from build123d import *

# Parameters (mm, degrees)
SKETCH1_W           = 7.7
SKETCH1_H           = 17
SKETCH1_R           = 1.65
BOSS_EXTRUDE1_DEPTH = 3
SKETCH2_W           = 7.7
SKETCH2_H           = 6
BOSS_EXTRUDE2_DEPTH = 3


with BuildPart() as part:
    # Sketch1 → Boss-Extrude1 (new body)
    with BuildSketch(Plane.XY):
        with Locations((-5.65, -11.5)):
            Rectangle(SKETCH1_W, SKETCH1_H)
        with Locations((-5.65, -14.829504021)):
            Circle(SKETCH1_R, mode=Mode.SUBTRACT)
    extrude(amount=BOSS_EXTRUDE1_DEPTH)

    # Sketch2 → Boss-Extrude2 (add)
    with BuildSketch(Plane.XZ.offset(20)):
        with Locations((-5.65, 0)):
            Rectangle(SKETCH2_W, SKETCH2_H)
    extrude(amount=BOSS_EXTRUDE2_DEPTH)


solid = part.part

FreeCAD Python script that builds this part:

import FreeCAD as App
import Part
import Sketcher

V = App.Vector
Q = App.Units.Quantity

doc = App.newDocument("Part")
body = doc.addObject("PartDesign::Body", "Body")

sketch1 = body.newObject("Sketcher::SketchObject", "Sketch")
sketch1.AttachmentSupport = (doc.getObject("XY_Plane"), [""])
sketch1.MapMode = "FlatFace"
sketch1.addGeometry([
    Part.LineSegment(V(-9.5, -3, 0), V(-9.5, -20, 0)),
    Part.LineSegment(V(-9.5, -20, 0), V(-1.8, -20, 0)),
    Part.LineSegment(V(-1.8, -20, 0), V(-1.8, -3, 0)),
    Part.LineSegment(V(-1.8, -3, 0), V(-9.5, -3, 0)),
    Part.Circle(V(-5.7, -14.8, 0), V(0, 0, 1), 1.6),
], False)
sketch1.addConstraint([
    Sketcher.Constraint("Coincident", 0, 2, 1, 1),
    Sketcher.Constraint("Coincident", 1, 2, 2, 1),
    Sketcher.Constraint("Coincident", 2, 2, 3, 1),
    Sketcher.Constraint("Coincident", 3, 2, 0, 1),
    Sketcher.Constraint("Vertical", 0),
    Sketcher.Constraint("Horizontal", 1),
    Sketcher.Constraint("Vertical", 2),
    Sketcher.Constraint("Horizontal", 3),
    Sketcher.Constraint("Diameter", 4, Q("3.3 mm")),
    Sketcher.Constraint("DistanceY", 0, 2, 0, 1, Q("17 mm")),
    Sketcher.Constraint("DistanceX", 1, 1, 1, 2, Q("7.7 mm")),
    Sketcher.Constraint("DistanceY", 0, 2, -1, 1, Q("20 mm")),
    Sketcher.Constraint("DistanceX", 0, 2, -1, 1, Q("9.5 mm")),
    Sketcher.Constraint("DistanceX", 4, 3, -1, 1, Q("5.65 mm")),
    Sketcher.Constraint("DistanceY", 4, 3, -1, 1, Q("14.829504 mm")),
])
pad1 = body.newObject("PartDesign::Pad", "Pad")
pad1.Profile = sketch1
pad1.Length = 3

sketch2 = body.newObject("Sketcher::SketchObject", "Sketch001")
sketch2.AttachmentSupport = (doc.getObject("XZ_Plane"), [""])
sketch2.MapMode = "FlatFace"
sketch2.AttachmentOffset = App.Placement(V(0, 0, 20), App.Rotation())
sketch2.addGeometry([
    Part.LineSegment(V(-10, 3, 0), V(-10, -3, 0)),
    Part.LineSegment(V(-10, -3, 0), V(-2, -3, 0)),
    Part.LineSegment(V(-2, -3, 0), V(-2, 3, 0)),
    Part.LineSegment(V(-2, 3, 0), V(-10, 3, 0)),
], False)
sketch2.addConstraint([
    Sketcher.Constraint("Coincident", 0, 2, 1, 1),
    Sketcher.Constraint("Coincident", 1, 2, 2, 1),
    Sketcher.Constraint("Coincident", 2, 2, 3, 1),
    Sketcher.Constraint("Coincident", 3, 2, 0, 1),
    Sketcher.Constraint("Vertical", 0),
    Sketcher.Constraint("Horizontal", 1),
    Sketcher.Constraint("Vertical", 2),
    Sketcher.Constraint("Horizontal", 3),
    Sketcher.Constraint("DistanceY", 0, 2, 0, 1, Q("6 mm")),
    Sketcher.Constraint("DistanceX", 1, 1, 1, 2, Q("7.7 mm")),
    Sketcher.Constraint("DistanceY", 0, 2, -1, 1, Q("3 mm")),
    Sketcher.Constraint("DistanceX", 0, 2, -1, 1, Q("9.5 mm")),
])
pad2 = body.newObject("PartDesign::Pad", "Pad001")
pad2.Profile = sketch2
pad2.Length = 3

doc.recompute()
